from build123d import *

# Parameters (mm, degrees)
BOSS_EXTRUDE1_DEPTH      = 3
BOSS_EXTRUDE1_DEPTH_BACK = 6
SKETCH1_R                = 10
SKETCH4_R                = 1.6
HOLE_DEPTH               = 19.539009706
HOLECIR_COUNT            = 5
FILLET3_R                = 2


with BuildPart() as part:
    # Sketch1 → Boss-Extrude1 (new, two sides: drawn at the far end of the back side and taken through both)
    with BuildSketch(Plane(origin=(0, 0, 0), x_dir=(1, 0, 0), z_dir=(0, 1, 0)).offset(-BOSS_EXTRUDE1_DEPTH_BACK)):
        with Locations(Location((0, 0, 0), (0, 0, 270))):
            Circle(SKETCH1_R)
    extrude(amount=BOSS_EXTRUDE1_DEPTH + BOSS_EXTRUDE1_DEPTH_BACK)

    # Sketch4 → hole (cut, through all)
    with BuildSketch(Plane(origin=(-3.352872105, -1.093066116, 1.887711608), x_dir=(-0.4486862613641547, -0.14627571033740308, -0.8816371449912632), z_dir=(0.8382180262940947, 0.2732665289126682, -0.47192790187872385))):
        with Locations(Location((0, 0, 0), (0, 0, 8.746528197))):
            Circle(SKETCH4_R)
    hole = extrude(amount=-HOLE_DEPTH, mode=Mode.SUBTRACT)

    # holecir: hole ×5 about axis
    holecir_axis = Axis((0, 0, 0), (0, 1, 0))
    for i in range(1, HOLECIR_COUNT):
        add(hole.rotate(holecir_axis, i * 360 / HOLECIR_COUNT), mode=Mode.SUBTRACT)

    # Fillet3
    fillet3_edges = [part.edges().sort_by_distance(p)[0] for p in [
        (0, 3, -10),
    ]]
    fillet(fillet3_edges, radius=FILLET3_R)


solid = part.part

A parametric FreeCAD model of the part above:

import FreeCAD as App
import Part
import Sketcher

V = App.Vector


def edges_at(feature, points):
    """Names of the edges that pass closest to the given points."""
    edges = feature.Shape.Edges
    near = lambda p: min(range(len(edges)), key=lambda i: edges[i].distToShape(Part.Vertex(*p))[0])
    return sorted({f"Edge{near(p) + 1}" for p in points})

doc = App.newDocument("Part")
body = doc.addObject("PartDesign::Body", "Body")

sketch1 = body.newObject("Sketcher::SketchObject", "Sketch")
sketch1.AttachmentSupport = (doc.getObject("XZ_Plane"), [""])
sketch1.MapMode = "FlatFace"
sketch1.addGeometry(Part.Circle(V(0, 0, 0), V(0, 0, 1), 10), False)
sketch1.addConstraint([
    Sketcher.Constraint("Coincident", 0, 3, -1, 1),
    Sketcher.Constraint("Diameter", 0, 20.0),
])
pad1 = body.newObject("PartDesign::Pad", "Pad")
pad1.Profile = sketch1
pad1.Type = "TwoLengths"
pad1.Length = 3
pad1.Length2 = 6
pad1.Reversed = True

sketch2 = body.newObject("Sketcher::SketchObject", "Sketch001")
sketch2.Placement = App.Placement(V(-3.352872, -1.093066, 1.887712), App.Rotation(V(-0.448686261, -0.14627571, -0.881637145), V(-0.309953511, 0.950751713, 0), V(0.838218026, 0.273266529, -0.471927902), "ZXY"))
sketch2.addGeometry(Part.Circle(V(0, 0, 0), V(0, 0, 1), 1.6), False)
sketch2.addConstraint([
    Sketcher.Constraint("Coincident", 0, 3, -1, 1),
    Sketcher.Constraint("Diameter", 0, 3.2),
])
pocket1 = body.newObject("PartDesign::Pocket", "Pocket")
pocket1.Profile = sketch2
pocket1.Type = "ThroughAll"
doc.recompute()

polarpattern = body.newObject("PartDesign::PolarPattern", "PolarPattern")
polarpattern.Originals = [pocket1]
polarpattern.Axis = (doc.getObject("Y_Axis"), [""])
polarpattern.Angle = 360
polarpattern.Occurrences = 5
body.Tip = polarpattern
doc.recompute()

fillet = body.newObject("PartDesign::Fillet", "Fillet")
fillet.Base = (polarpattern, edges_at(polarpattern, [(0, 3, -10)]))
fillet.Radius = 2

doc.recompute()
